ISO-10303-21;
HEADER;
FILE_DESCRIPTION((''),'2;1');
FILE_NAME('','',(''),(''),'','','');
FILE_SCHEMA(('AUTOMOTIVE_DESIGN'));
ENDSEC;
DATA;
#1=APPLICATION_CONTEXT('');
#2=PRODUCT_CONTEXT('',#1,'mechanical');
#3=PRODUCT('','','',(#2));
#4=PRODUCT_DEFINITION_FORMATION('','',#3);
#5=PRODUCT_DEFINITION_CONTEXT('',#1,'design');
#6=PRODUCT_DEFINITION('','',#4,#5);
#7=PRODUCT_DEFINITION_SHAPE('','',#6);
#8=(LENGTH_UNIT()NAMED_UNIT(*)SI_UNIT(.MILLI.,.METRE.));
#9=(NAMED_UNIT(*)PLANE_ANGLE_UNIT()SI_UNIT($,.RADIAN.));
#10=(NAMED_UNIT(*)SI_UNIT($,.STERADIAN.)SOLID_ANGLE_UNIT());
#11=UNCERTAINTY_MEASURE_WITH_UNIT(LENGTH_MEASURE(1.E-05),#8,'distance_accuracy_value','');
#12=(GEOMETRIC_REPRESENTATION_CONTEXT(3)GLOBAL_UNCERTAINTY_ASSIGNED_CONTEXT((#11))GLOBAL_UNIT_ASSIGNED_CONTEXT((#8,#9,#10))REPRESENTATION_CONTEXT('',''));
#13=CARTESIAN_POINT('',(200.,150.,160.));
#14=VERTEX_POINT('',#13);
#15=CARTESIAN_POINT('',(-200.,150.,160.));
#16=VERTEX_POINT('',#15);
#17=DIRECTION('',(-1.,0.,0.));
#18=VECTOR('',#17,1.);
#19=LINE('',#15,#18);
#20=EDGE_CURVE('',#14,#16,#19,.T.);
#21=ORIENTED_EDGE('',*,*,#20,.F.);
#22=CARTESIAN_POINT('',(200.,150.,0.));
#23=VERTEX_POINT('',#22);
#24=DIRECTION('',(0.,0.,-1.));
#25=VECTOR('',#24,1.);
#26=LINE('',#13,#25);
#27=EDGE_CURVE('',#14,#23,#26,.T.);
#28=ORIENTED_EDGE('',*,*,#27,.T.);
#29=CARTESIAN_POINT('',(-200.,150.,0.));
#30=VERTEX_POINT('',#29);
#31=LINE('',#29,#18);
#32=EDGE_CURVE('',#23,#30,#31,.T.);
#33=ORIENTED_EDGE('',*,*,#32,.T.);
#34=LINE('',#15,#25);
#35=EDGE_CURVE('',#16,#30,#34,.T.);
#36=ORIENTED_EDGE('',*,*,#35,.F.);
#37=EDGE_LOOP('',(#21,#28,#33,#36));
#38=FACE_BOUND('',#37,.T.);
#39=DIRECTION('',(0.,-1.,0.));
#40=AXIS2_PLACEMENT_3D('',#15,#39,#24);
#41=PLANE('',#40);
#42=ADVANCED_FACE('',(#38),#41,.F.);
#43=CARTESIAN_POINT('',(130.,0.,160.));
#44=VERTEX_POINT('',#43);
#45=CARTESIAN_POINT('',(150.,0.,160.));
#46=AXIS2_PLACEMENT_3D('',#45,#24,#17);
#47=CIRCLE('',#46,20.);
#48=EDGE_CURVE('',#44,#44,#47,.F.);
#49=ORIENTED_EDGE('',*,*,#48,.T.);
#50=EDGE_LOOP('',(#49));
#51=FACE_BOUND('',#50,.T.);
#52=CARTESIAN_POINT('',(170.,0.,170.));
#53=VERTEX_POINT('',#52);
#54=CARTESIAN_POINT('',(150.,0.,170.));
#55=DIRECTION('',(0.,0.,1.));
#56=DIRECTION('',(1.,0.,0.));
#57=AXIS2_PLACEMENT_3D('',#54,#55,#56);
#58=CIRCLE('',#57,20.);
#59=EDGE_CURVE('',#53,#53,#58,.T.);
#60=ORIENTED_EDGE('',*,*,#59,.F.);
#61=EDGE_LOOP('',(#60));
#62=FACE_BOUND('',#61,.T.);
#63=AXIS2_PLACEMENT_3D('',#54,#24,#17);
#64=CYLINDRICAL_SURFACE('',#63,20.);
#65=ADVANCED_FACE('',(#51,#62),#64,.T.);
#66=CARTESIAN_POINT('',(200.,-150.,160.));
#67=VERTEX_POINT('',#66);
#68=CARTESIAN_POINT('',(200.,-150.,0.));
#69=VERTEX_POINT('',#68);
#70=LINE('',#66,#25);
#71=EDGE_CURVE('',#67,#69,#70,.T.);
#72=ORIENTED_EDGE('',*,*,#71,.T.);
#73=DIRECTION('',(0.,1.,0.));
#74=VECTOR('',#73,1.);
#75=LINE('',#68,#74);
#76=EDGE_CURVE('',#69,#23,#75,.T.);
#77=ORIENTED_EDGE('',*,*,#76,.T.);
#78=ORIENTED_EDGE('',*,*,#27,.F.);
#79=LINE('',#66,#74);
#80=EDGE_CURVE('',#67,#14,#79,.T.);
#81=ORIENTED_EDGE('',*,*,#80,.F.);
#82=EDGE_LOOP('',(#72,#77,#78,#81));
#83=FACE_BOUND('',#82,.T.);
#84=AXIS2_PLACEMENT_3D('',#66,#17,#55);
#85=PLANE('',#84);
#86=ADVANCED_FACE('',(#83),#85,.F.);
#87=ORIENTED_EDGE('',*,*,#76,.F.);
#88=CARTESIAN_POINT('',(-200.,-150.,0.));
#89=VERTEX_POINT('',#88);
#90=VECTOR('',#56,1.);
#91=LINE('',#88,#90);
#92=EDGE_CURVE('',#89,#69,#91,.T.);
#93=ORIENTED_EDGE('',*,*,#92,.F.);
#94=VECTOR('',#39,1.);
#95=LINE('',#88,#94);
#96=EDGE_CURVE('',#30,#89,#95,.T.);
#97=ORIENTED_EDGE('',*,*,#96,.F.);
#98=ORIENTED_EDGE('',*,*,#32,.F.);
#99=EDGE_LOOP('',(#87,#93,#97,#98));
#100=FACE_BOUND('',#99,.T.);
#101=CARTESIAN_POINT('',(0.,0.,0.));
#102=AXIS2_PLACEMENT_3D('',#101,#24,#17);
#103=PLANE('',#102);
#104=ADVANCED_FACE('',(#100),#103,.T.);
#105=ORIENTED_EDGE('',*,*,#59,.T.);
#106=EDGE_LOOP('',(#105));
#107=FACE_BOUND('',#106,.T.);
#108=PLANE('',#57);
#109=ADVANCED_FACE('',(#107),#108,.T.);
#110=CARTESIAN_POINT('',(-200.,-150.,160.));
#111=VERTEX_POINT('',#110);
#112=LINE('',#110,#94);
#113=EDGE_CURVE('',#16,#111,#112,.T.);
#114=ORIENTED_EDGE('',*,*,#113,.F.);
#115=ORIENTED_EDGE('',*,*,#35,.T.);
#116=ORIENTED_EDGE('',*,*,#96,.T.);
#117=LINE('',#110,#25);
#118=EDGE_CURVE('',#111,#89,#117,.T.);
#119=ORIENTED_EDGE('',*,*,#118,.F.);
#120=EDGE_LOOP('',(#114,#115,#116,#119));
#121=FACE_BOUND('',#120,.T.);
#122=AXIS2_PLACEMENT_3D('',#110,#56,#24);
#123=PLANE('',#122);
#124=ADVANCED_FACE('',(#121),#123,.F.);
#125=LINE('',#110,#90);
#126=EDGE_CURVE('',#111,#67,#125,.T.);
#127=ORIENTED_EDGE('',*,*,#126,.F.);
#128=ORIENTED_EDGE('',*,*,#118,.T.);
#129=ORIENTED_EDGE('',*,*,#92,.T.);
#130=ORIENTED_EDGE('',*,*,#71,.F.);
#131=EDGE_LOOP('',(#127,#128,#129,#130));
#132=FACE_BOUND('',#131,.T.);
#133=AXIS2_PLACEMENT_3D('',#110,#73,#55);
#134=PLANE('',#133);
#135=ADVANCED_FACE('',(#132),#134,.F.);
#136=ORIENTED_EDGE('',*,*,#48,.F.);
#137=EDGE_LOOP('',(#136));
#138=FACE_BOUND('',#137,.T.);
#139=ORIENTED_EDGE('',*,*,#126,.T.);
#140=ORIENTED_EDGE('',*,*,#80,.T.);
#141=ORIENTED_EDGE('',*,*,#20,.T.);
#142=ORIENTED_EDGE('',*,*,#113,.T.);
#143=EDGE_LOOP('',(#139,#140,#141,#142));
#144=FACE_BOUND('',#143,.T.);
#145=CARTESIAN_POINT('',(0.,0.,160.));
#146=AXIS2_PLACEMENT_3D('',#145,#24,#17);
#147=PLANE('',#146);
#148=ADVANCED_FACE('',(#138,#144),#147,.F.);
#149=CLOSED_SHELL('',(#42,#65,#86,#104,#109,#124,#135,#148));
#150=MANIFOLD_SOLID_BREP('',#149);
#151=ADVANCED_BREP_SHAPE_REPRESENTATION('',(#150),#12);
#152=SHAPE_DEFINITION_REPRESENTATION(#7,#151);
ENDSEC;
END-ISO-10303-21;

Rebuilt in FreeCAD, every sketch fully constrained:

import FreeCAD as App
import Part
import Sketcher

doc = App.newDocument("Part")
params = doc.addObject("Spreadsheet::Sheet", "Params")
for row, (alias, value) in enumerate([
    ("sketch1_width", "400 mm"),
    ("sketch1_height", "300 mm"),
    ("pad1_length", "160 mm"),
    ("sketch2_diameter", "40 mm"),
    ("pad2_length", "10 mm"),
], start=1):
    params.set(f"A{row}", alias)
    params.set(f"B{row}", "=" + value)
    params.setAlias(f"B{row}", alias)

body = doc.addObject("PartDesign::Body", "Body")

# Sketch on XY plane
sketch1 = doc.addObject("Sketcher::SketchObject", "Sketch")
body.addObject(sketch1)
sketch1.AttachmentSupport = (doc.XY_Plane, [""])
sketch1.MapMode = "FlatFace"
sketch1.addGeometry(Part.LineSegment(App.Vector(-200, 150, 0), App.Vector(-200, -150, 0)), False)
sketch1.addGeometry(Part.LineSegment(App.Vector(-200, -150, 0), App.Vector(200, -150, 0)), False)
sketch1.addGeometry(Part.LineSegment(App.Vector(200, -150, 0), App.Vector(200, 150, 0)), False)
sketch1.addGeometry(Part.LineSegment(App.Vector(200, 150, 0), App.Vector(-200, 150, 0)), False)
sketch1.addConstraint(Sketcher.Constraint("Coincident", 0, 2, 1, 1))
sketch1.addConstraint(Sketcher.Constraint("Coincident", 1, 2, 2, 1))
sketch1.addConstraint(Sketcher.Constraint("Coincident", 2, 2, 3, 1))
sketch1.addConstraint(Sketcher.Constraint("Coincident", 3, 2, 0, 1))
sketch1.addConstraint(Sketcher.Constraint("Vertical", 0))
sketch1.addConstraint(Sketcher.Constraint("Horizontal", 1))
sketch1.addConstraint(Sketcher.Constraint("Vertical", 2))
sketch1.addConstraint(Sketcher.Constraint("Horizontal", 3))
sketch1.addConstraint(Sketcher.Constraint("Symmetric", 0, 2, 2, 2, -1, 1))
sketch1.addConstraint(Sketcher.Constraint("DistanceX", 1, 1, 1, 2, 400.0))
sketch1.addConstraint(Sketcher.Constraint("DistanceY", 0, 2, 0, 1, 300.0))
sketch1.setExpression("Constraints[9]", "Params.sketch1_width")
sketch1.setExpression("Constraints[10]", "Params.sketch1_height")
pad1 = doc.addObject("PartDesign::Pad", "Pad")
body.addObject(pad1)
pad1.Profile = sketch1
pad1.setExpression("Length", "Params.pad1_length")

# Sketch on XY plane
sketch2 = doc.addObject("Sketcher::SketchObject", "Sketch001")
body.addObject(sketch2)
sketch2.AttachmentSupport = (doc.XY_Plane, [""])
sketch2.MapMode = "FlatFace"
sketch2.AttachmentOffset = App.Placement(App.Vector(0, 0, 160), App.Rotation())
sketch2.addGeometry(Part.Circle(App.Vector(150, 0, 0), App.Vector(0, 0, 1), 20), False)
sketch2.addConstraint(Sketcher.Constraint("PointOnObject", 0, 3, -1))
sketch2.addConstraint(Sketcher.Constraint("Diameter", 0, 40.0))
sketch2.addConstraint(Sketcher.Constraint("DistanceX", -1, 1, 0, 3, 150.0))
sketch2.setExpression("Constraints[1]", "Params.sketch2_diameter")
pad2 = doc.addObject("PartDesign::Pad", "Pad001")
body.addObject(pad2)
pad2.Profile = sketch2
pad2.setExpression("Length", "Params.pad2_length")

doc.recompute()
